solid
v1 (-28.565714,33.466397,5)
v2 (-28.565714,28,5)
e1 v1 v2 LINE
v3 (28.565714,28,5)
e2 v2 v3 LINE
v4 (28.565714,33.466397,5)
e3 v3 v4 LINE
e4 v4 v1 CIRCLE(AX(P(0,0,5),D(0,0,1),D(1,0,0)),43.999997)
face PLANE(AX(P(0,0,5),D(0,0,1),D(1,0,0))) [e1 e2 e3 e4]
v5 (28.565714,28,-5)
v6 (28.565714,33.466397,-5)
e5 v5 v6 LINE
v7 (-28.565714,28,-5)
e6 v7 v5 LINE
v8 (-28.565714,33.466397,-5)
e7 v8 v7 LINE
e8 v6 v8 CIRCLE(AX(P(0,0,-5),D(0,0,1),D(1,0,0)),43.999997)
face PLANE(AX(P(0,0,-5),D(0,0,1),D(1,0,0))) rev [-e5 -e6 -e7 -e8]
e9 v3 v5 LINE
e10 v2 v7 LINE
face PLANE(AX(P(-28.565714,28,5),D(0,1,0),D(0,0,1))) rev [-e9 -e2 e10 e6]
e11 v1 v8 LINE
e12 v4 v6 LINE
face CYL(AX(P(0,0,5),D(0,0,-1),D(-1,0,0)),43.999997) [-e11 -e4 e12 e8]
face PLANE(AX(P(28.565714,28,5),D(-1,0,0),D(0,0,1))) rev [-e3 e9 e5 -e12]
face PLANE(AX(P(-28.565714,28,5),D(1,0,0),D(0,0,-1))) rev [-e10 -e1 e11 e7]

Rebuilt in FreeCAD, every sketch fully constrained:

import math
import FreeCAD as App
import Part
import Sketcher

V = App.Vector
Q = App.Units.Quantity

doc = App.newDocument("Part")
body = doc.addObject("PartDesign::Body", "Body")

sketch1 = body.newObject("Sketcher::SketchObject", "Sketch")
sketch1.AttachmentSupport = (doc.getObject("XY_Plane"), [""])
sketch1.MapMode = "FlatFace"
sketch1.addGeometry(Part.LineSegment(V(29, 28, 0), V(29, 33, 0)), False)
sketch1.addGeometry(Part.ArcOfCircle(Part.Circle(V(0, 0, 0), V(0, 0, 1), 44), math.radians(50), math.radians(130)), False)
sketch1.addGeometry(Part.LineSegment(V(-29, 33, 0), V(-29, 28, 0)), False)
sketch1.addGeometry(Part.LineSegment(V(-29, 28, 0), V(29, 28, 0)), False)
sketch1.addConstraint(Sketcher.Constraint("Coincident", 0, 2, 1, 1))
sketch1.addConstraint(Sketcher.Constraint("Coincident", 1, 2, 2, 1))
sketch1.addConstraint(Sketcher.Constraint("Coincident", 2, 2, 3, 1))
sketch1.addConstraint(Sketcher.Constraint("Coincident", 3, 2, 0, 1))
sketch1.addConstraint(Sketcher.Constraint("Vertical", 0))
sketch1.addConstraint(Sketcher.Constraint("Vertical", 2))
sketch1.addConstraint(Sketcher.Constraint("Horizontal", 3))
sketch1.addConstraint(Sketcher.Constraint("Coincident", 1, 3, -1, 1))
sketch1.addConstraint(Sketcher.Constraint("Horizontal", 0, 2, 1, 2))
sketch1.addConstraint(Sketcher.Constraint("DistanceY", -1, 1, 2, 2, Q("28 mm")))
sketch1.addConstraint(Sketcher.Constraint("Radius", 1, Q("43.999997 mm")))
sketch1.addConstraint(Sketcher.Constraint("DistanceX", 3, 1, 3, 2, Q("57.131427 mm")))
pad1 = body.newObject("PartDesign::Pad", "Pad")
pad1.Profile = sketch1
pad1.Length = 10
pad1.Midplane = True

doc.recompute()
